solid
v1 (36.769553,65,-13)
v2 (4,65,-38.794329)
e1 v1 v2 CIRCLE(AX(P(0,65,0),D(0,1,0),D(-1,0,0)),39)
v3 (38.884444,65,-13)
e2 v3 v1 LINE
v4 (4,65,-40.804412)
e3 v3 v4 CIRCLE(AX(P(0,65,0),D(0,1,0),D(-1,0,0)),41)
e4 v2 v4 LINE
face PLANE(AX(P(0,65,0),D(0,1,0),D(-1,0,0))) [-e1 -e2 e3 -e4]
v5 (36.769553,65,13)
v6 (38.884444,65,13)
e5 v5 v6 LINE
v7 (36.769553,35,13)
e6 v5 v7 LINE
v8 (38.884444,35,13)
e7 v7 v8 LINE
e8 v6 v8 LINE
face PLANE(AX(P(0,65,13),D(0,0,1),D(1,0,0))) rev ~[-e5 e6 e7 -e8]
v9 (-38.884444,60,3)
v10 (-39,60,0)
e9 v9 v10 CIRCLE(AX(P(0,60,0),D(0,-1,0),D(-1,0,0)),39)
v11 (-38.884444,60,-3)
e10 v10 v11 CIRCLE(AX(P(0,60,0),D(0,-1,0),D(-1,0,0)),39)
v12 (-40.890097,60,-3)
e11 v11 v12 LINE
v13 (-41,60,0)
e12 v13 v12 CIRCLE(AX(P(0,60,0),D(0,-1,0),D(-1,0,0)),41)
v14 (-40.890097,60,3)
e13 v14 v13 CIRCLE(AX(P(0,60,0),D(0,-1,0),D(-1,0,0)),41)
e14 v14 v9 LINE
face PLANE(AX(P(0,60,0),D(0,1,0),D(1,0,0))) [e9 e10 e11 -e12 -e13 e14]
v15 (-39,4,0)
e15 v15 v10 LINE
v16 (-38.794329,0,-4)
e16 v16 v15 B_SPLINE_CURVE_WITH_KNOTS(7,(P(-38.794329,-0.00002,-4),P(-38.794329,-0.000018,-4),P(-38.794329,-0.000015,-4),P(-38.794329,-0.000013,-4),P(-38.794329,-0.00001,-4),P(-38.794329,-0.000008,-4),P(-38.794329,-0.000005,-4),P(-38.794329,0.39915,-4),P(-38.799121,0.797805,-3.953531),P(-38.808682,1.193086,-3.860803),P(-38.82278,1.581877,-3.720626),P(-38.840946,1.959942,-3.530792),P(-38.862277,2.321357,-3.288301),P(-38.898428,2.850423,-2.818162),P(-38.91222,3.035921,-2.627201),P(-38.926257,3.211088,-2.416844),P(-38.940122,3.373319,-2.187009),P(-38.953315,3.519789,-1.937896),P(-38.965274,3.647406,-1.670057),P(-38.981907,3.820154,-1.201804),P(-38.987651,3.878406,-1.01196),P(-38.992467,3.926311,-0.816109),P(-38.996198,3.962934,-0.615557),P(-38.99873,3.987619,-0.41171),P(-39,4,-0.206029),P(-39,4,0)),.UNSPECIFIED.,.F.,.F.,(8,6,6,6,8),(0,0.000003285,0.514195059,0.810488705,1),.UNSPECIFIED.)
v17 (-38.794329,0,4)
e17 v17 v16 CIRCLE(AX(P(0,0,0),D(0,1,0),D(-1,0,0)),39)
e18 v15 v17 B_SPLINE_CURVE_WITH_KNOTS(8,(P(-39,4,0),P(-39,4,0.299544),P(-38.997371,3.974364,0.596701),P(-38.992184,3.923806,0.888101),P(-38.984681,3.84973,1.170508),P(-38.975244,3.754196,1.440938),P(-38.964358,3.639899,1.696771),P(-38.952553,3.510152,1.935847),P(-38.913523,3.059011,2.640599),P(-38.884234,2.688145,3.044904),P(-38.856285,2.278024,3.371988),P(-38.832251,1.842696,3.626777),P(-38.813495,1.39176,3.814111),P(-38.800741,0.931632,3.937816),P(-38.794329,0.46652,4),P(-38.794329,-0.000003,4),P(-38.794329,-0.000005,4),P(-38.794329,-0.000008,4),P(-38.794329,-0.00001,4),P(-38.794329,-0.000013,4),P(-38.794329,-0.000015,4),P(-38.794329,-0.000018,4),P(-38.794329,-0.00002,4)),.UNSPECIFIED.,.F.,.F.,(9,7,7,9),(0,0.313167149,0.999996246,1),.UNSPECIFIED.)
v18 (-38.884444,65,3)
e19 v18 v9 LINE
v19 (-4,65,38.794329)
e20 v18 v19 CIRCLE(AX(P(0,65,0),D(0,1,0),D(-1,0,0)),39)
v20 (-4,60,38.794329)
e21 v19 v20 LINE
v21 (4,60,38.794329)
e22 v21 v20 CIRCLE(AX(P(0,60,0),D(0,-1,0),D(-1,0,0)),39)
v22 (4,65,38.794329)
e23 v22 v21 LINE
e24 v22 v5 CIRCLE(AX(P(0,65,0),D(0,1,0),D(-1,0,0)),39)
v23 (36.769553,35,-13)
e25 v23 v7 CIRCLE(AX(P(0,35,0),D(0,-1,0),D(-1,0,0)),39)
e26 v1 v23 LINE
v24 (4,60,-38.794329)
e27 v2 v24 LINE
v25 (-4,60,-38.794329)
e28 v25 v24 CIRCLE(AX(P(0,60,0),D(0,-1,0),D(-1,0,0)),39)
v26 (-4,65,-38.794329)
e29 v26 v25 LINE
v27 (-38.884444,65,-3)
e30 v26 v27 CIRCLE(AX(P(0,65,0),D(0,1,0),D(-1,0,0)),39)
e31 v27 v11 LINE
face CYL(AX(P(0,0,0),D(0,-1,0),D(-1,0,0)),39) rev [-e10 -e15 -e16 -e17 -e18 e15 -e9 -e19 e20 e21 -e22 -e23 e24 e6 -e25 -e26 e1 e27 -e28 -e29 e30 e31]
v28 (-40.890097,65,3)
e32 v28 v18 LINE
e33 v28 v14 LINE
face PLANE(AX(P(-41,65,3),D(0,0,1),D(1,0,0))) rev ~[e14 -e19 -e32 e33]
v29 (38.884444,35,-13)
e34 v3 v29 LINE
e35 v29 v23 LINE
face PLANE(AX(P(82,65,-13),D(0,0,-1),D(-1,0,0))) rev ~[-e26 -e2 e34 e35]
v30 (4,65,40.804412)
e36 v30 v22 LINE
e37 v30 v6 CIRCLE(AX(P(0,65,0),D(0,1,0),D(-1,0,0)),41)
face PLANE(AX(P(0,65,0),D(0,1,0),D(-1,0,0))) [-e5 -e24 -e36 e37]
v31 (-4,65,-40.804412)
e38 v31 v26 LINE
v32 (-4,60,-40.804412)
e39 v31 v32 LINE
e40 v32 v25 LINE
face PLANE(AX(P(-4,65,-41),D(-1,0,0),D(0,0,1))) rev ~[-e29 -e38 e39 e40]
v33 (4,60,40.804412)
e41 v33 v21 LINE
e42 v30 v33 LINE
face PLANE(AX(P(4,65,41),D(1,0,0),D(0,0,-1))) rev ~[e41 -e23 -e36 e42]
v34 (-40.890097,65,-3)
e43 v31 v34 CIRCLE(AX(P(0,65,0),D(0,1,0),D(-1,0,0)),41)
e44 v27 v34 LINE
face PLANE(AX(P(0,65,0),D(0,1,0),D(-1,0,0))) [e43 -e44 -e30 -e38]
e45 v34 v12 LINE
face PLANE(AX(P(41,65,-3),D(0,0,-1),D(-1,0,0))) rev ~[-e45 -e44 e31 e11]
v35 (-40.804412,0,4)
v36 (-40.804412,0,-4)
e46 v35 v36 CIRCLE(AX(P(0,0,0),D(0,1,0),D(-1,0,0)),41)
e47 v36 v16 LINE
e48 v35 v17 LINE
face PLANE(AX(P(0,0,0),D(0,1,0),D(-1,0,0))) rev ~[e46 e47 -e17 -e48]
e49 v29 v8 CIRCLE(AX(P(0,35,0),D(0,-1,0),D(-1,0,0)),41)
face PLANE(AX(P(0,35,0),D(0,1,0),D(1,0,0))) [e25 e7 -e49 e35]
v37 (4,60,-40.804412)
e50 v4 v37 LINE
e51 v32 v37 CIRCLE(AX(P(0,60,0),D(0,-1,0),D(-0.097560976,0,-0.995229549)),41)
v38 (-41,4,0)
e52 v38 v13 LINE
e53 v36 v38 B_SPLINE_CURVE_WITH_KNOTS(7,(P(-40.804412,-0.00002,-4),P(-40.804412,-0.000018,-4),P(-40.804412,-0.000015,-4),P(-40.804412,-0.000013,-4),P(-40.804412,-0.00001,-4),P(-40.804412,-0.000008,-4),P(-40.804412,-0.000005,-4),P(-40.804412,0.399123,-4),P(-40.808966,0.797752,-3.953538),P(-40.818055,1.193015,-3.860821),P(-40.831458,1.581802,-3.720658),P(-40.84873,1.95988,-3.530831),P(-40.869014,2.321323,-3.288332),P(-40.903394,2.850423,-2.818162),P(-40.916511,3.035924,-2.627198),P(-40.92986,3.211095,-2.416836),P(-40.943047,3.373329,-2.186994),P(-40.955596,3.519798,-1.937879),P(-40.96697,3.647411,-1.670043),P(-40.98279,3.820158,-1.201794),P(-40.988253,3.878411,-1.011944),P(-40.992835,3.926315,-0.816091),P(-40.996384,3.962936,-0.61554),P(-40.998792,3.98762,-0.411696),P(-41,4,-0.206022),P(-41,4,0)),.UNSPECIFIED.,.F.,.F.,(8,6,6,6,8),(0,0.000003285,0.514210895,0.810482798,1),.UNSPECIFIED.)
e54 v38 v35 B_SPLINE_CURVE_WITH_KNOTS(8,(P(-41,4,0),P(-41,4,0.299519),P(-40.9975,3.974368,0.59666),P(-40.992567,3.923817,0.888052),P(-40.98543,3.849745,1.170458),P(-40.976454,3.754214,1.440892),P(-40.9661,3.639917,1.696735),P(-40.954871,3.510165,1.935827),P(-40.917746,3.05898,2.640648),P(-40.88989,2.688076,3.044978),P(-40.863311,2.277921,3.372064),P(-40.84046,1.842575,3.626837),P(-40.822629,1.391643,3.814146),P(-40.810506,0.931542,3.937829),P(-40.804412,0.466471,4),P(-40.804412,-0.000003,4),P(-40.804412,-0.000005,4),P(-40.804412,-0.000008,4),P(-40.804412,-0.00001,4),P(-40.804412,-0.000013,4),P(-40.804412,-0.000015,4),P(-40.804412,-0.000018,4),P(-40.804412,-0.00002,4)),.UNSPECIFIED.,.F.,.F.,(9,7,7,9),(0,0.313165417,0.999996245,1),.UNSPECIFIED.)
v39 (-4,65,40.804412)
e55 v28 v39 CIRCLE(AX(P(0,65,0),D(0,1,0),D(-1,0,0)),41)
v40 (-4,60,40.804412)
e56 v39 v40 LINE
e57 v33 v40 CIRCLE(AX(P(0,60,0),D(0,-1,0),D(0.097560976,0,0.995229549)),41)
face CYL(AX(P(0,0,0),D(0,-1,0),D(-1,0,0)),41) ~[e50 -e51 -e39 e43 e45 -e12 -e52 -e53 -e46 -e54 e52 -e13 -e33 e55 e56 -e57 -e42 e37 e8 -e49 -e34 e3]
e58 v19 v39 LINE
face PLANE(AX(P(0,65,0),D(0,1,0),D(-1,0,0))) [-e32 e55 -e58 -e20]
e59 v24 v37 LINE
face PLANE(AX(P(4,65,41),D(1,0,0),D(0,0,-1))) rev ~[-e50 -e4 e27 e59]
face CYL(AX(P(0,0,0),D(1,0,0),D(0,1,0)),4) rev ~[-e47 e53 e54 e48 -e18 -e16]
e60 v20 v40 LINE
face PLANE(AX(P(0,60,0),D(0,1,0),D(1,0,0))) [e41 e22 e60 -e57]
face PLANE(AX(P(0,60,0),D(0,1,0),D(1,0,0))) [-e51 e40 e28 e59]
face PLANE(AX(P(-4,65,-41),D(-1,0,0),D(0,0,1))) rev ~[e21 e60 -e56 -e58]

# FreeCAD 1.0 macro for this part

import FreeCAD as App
import Part
import Sketcher

doc = App.newDocument("Part")
body = doc.addObject("PartDesign::Body", "Body")

sketch1 = body.newObject("Sketcher::SketchObject", "Sketch")
sketch1.AttachmentSupport = (doc.getObject("XZ_Plane"), [""])
sketch1.MapMode = "FlatFace"
sketch1.addGeometry([
    Part.Circle(App.Vector(0, 0, 0), App.Vector(0, 0, 1), 41),
    Part.Circle(App.Vector(0, 0, 0), App.Vector(0, 0, 1), 39),
], False)
sketch1.addConstraint([
    Sketcher.Constraint("Coincident", 0, 3, -1, 1),
    Sketcher.Constraint("Coincident", 1, 3, -1, 1),
    Sketcher.Constraint("Diameter", 0, 82.0),
    Sketcher.Constraint("Diameter", 1, 78.0),
])
pad1 = body.newObject("PartDesign::Pad", "Pad")
pad1.Profile = sketch1
pad1.Length = 65
pad1.Reversed = True

sketch2 = body.newObject("Sketcher::SketchObject", "Sketch001")
sketch2.AttachmentSupport = (doc.getObject("XZ_Plane"), [""])
sketch2.MapMode = "FlatFace"
sketch2.AttachmentOffset = App.Placement(App.Vector(0, 0, -65), App.Rotation())
sketch2.addGeometry([
    Part.LineSegment(App.Vector(-4, -41, 0), App.Vector(-4, 41, 0)),
    Part.LineSegment(App.Vector(-4, 41, 0), App.Vector(4, 41, 0)),
    Part.LineSegment(App.Vector(4, 41, 0), App.Vector(4, -41, 0)),
    Part.LineSegment(App.Vector(4, -41, 0), App.Vector(-4, -41, 0)),
], False)
sketch2.addConstraint([
    Sketcher.Constraint("Coincident", 0, 2, 1, 1),
    Sketcher.Constraint("Coincident", 1, 2, 2, 1),
    Sketcher.Constraint("Coincident", 2, 2, 3, 1),
    Sketcher.Constraint("Coincident", 3, 2, 0, 1),
    Sketcher.Constraint("Vertical", 0),
    Sketcher.Constraint("Horizontal", 1),
    Sketcher.Constraint("Vertical", 2),
    Sketcher.Constraint("Horizontal", 3),
    Sketcher.Constraint("Symmetric", 0, 2, 2, 2, -1, 1),
    Sketcher.Constraint("DistanceX", 1, 1, 1, 2, 8.0),
    Sketcher.Constraint("DistanceY", 0, 1, 0, 2, 82.0),
])
pocket1 = body.newObject("PartDesign::Pocket", "Pocket")
pocket1.Profile = sketch2
pocket1.Length = 5
pocket1.Reversed = True

sketch3 = body.newObject("Sketcher::SketchObject", "Sketch002")
sketch3.AttachmentSupport = (doc.getObject("XZ_Plane"), [""])
sketch3.MapMode = "FlatFace"
sketch3.AttachmentOffset = App.Placement(App.Vector(0, 0, -65), App.Rotation())
sketch3.addGeometry([
    Part.LineSegment(App.Vector(41, -3, 0), App.Vector(-41, -3, 0)),
    Part.LineSegment(App.Vector(-41, -3, 0), App.Vector(-41, 3, 0)),
    Part.LineSegment(App.Vector(-41, 3, 0), App.Vector(41, 3, 0)),
    Part.LineSegment(App.Vector(41, 3, 0), App.Vector(41, -3, 0)),
], False)
sketch3.addConstraint([
    Sketcher.Constraint("Coincident", 0, 2, 1, 1),
    Sketcher.Constraint("Coincident", 1, 2, 2, 1),
    Sketcher.Constraint("Coincident", 2, 2, 3, 1),
    Sketcher.Constraint("Coincident", 3, 2, 0, 1),
    Sketcher.Constraint("Horizontal", 0),
    Sketcher.Constraint("Vertical", 1),
    Sketcher.Constraint("Horizontal", 2),
    Sketcher.Constraint("Vertical", 3),
    Sketcher.Constraint("Symmetric", 0, 2, 2, 2, -1, 1),
    Sketcher.Constraint("DistanceX", 0, 2, 0, 1, 82.0),
    Sketcher.Constraint("DistanceY", 1, 1, 1, 2, 6.0),
])
pocket2 = body.newObject("PartDesign::Pocket", "Pocket001")
pocket2.Profile = sketch3
pocket2.Length = 5
pocket2.Reversed = True

sketch4 = body.newObject("Sketcher::SketchObject", "Sketch003")
sketch4.AttachmentSupport = (doc.getObject("XZ_Plane"), [""])
sketch4.MapMode = "FlatFace"
sketch4.AttachmentOffset = App.Placement(App.Vector(0, 0, -65), App.Rotation())
sketch4.addGeometry([
    Part.LineSegment(App.Vector(0, -13, 0), App.Vector(0, 13, 0)),
    Part.LineSegment(App.Vector(0, 13, 0), App.Vector(82, 13, 0)),
    Part.LineSegment(App.Vector(82, 13, 0), App.Vector(82, -13, 0)),
    Part.LineSegment(App.Vector(82, -13, 0), App.Vector(0, -13, 0)),
], False)
sketch4.addConstraint([
    Sketcher.Constraint("Coincident", 0, 2, 1, 1),
    Sketcher.Constraint("Coincident", 1, 2, 2, 1),
    Sketcher.Constraint("Coincident", 2, 2, 3, 1),
    Sketcher.Constraint("Coincident", 3, 2, 0, 1),
    Sketcher.Constraint("Vertical", 0),
    Sketcher.Constraint("Horizontal", 1),
    Sketcher.Constraint("Vertical", 2),
    Sketcher.Constraint("Horizontal", 3),
    Sketcher.Constraint("Symmetric", 0, 2, 3, 2, -1, 1),
    Sketcher.Constraint("DistanceX", 1, 1, 1, 2, 82.0),
    Sketcher.Constraint("DistanceY", 0, 1, 0, 2, 26.0),
])
pocket3 = body.newObject("PartDesign::Pocket", "Pocket002")
pocket3.Profile = sketch4
pocket3.Length = 30
pocket3.Reversed = True

sketch5 = body.newObject("Sketcher::SketchObject", "Sketch004")
sketch5.AttachmentSupport = (doc.getObject("YZ_Plane"), [""])
sketch5.MapMode = "FlatFace"
sketch5.addGeometry(Part.Circle(App.Vector(0, 0, 0), App.Vector(0, 0, 1), 4), False)
sketch5.addConstraint([
    Sketcher.Constraint("Coincident", 0, 3, -1, 1),
    Sketcher.Constraint("Diameter", 0, 8.0),
])
pocket4 = body.newObject("PartDesign::Pocket", "Pocket003")
pocket4.Profile = sketch5
pocket4.Length = 82

doc.recompute()
